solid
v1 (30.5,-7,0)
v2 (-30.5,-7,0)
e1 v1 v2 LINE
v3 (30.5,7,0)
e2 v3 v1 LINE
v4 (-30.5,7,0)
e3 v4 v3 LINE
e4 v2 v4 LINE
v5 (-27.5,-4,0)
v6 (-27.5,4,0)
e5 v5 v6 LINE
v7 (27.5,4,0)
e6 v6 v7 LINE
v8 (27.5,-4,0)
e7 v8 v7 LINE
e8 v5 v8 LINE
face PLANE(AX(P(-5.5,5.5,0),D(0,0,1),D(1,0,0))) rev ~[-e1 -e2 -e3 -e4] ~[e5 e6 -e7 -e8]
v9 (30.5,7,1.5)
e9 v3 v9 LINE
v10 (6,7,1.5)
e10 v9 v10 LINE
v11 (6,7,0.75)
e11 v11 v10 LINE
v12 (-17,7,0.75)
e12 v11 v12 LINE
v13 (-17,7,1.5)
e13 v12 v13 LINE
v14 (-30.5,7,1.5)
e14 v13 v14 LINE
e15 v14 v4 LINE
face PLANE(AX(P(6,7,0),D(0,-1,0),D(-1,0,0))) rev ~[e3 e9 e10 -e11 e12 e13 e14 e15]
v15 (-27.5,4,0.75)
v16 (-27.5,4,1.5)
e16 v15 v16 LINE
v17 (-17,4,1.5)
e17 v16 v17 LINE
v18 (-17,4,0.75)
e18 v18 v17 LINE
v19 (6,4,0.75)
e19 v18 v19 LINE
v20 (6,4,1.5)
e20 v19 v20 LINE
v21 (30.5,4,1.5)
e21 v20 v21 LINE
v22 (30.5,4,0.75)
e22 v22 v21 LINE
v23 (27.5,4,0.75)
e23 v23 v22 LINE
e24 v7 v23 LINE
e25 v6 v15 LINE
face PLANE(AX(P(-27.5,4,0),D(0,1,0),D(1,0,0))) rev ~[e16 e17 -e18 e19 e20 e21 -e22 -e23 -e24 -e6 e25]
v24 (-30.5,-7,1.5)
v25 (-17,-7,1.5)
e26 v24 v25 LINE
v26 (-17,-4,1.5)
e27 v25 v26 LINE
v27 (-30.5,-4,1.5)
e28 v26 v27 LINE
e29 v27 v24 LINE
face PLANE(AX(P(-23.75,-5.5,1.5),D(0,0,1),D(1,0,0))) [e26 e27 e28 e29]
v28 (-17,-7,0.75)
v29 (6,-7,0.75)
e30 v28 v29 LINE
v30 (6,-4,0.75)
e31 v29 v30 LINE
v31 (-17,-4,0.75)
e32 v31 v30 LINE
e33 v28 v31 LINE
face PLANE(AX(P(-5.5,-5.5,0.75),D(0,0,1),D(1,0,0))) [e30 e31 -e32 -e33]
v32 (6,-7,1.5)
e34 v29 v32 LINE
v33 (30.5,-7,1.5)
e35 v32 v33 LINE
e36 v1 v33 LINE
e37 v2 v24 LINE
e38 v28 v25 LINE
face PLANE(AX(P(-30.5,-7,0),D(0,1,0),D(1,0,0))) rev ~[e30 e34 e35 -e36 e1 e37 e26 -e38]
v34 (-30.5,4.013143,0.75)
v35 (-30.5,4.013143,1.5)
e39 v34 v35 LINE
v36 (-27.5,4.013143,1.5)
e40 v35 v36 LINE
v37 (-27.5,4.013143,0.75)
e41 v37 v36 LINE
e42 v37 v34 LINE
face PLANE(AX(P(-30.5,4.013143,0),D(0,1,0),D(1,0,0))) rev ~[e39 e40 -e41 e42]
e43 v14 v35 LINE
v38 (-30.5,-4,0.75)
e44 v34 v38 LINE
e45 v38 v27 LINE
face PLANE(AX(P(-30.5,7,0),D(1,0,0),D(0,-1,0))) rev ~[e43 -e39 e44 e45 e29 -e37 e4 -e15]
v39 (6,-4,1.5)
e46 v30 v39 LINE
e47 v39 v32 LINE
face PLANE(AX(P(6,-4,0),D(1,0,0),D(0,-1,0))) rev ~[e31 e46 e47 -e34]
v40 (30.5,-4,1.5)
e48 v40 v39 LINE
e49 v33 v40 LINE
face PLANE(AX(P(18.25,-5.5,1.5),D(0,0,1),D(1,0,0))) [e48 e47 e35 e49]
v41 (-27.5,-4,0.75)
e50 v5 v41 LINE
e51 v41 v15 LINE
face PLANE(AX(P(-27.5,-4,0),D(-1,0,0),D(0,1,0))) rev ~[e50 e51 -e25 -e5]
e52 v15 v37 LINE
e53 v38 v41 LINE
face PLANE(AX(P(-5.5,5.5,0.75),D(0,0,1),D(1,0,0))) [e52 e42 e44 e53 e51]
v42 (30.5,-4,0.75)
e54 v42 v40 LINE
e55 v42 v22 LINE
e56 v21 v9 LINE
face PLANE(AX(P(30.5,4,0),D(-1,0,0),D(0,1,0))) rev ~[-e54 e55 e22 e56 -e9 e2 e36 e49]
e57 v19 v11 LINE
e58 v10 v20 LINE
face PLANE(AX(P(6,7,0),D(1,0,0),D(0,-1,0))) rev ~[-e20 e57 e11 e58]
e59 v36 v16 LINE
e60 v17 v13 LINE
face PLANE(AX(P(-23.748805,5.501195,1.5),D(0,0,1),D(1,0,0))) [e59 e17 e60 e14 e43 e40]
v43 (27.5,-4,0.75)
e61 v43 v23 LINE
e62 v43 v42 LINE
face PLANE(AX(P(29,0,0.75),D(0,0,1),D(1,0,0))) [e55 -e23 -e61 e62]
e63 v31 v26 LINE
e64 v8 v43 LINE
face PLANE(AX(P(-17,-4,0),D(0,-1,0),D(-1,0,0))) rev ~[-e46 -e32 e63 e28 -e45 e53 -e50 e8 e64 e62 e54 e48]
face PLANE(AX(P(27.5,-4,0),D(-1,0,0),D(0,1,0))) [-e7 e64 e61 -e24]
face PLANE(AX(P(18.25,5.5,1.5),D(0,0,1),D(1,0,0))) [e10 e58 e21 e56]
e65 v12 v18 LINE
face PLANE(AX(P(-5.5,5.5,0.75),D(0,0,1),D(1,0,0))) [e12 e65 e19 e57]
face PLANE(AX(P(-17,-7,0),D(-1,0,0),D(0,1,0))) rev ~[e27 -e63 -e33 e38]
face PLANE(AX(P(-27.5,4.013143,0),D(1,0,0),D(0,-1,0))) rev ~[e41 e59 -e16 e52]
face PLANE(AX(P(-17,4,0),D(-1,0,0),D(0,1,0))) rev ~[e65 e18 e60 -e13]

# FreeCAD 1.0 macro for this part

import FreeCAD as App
import Part
import Sketcher

V = App.Vector
Q = App.Units.Quantity

doc = App.newDocument("Part")
body = doc.addObject("PartDesign::Body", "Body")
body.AllowCompound = True

sketch1 = body.newObject("Sketcher::SketchObject", "Sketch")
sketch1.AttachmentSupport = (doc.getObject("XY_Plane"), [""])
sketch1.MapMode = "FlatFace"
sketch1.addGeometry([
    Part.LineSegment(V(27.5, 4, 0), V(27.5, -4, 0)),
    Part.LineSegment(V(27.5, -4, 0), V(30.5, -4, 0)),
    Part.LineSegment(V(30.5, -4, 0), V(30.5, 4, 0)),
    Part.LineSegment(V(30.5, 4, 0), V(27.5, 4, 0)),
    Part.LineSegment(V(-27.5, 4, 0), V(6, 4, 0)),
    Part.LineSegment(V(6, 4, 0), V(6, 7, 0)),
    Part.LineSegment(V(6, 7, 0), V(-30.5, 7, 0)),
    Part.LineSegment(V(-30.5, 7, 0), V(-30.5, -4, 0)),
    Part.LineSegment(V(-30.5, -4, 0), V(-27.5, -4, 0)),
    Part.LineSegment(V(-27.5, -4, 0), V(-27.5, 4, 0)),
    Part.LineSegment(V(-17, -4, 0), V(-17, -7, 0)),
    Part.LineSegment(V(-17, -7, 0), V(6, -7, 0)),
    Part.LineSegment(V(6, -7, 0), V(6, -4, 0)),
    Part.LineSegment(V(6, -4, 0), V(-17, -4, 0)),
], False)
sketch1.addConstraint([
    Sketcher.Constraint("Coincident", 0, 2, 1, 1),
    Sketcher.Constraint("Coincident", 1, 2, 2, 1),
    Sketcher.Constraint("Coincident", 2, 2, 3, 1),
    Sketcher.Constraint("Coincident", 3, 2, 0, 1),
    Sketcher.Constraint("Coincident", 4, 2, 5, 1),
    Sketcher.Constraint("Coincident", 5, 2, 6, 1),
    Sketcher.Constraint("Coincident", 6, 2, 7, 1),
    Sketcher.Constraint("Coincident", 7, 2, 8, 1),
    Sketcher.Constraint("Coincident", 8, 2, 9, 1),
    Sketcher.Constraint("Coincident", 9, 2, 4, 1),
    Sketcher.Constraint("Coincident", 10, 2, 11, 1),
    Sketcher.Constraint("Coincident", 11, 2, 12, 1),
    Sketcher.Constraint("Coincident", 12, 2, 13, 1),
    Sketcher.Constraint("Coincident", 13, 2, 10, 1),
    Sketcher.Constraint("Vertical", 0),
    Sketcher.Constraint("Horizontal", 1),
    Sketcher.Constraint("Vertical", 2),
    Sketcher.Constraint("Horizontal", 3),
    Sketcher.Constraint("Horizontal", 4),
    Sketcher.Constraint("Vertical", 5),
    Sketcher.Constraint("Horizontal", 6),
    Sketcher.Constraint("Vertical", 7),
    Sketcher.Constraint("Horizontal", 8),
    Sketcher.Constraint("Vertical", 9),
    Sketcher.Constraint("Vertical", 10),
    Sketcher.Constraint("Horizontal", 11),
    Sketcher.Constraint("Vertical", 12),
    Sketcher.Constraint("Horizontal", 13),
    Sketcher.Constraint("Symmetric", 2, 2, 7, 2, -1, 1),
    Sketcher.Constraint("Symmetric", 0, 2, 9, 2, -1, 1),
    Sketcher.Constraint("Symmetric", 5, 2, 11, 2, -1),
    Sketcher.Constraint("Horizontal", 3, 2, 4, 2),
    Sketcher.Constraint("Horizontal", 8, 2, 12, 2),
    Sketcher.Constraint("Equal", 8, 5),
    Sketcher.Constraint("DistanceX", 1, 1, 1, 2, Q("3 mm")),
    Sketcher.Constraint("DistanceX", 11, 1, 11, 2, Q("23 mm")),
    Sketcher.Constraint("DistanceY", 0, 2, 0, 1, Q("8 mm")),
    Sketcher.Constraint("DistanceX", 4, 1, 4, 2, Q("33.5 mm")),
    Sketcher.Constraint("DistanceX", -1, 1, 4, 2, Q("6 mm")),
])
pad1 = body.newObject("PartDesign::Pad", "Pad")
pad1.Profile = sketch1
pad1.Length = 0.75

sketch2 = body.newObject("Sketcher::SketchObject", "Sketch001")
sketch2.AttachmentSupport = (doc.getObject("XY_Plane"), [""])
sketch2.MapMode = "FlatFace"
sketch2.addGeometry([
    Part.LineSegment(V(-30.5, 7, 0), V(-30.5, 4.013, 0)),
    Part.LineSegment(V(-30.5, 4.013, 0), V(-27.5, 4.013, 0)),
    Part.LineSegment(V(-27.5, 4.013, 0), V(-27.5, 4, 0)),
    Part.LineSegment(V(-27.5, 4, 0), V(-17, 4, 0)),
    Part.LineSegment(V(-17, 4, 0), V(-17, 7, 0)),
    Part.LineSegment(V(-17, 7, 0), V(-30.5, 7, 0)),
    Part.LineSegment(V(-30.5, -7, 0), V(-17, -7, 0)),
    Part.LineSegment(V(-17, -7, 0), V(-17, -4, 0)),
    Part.LineSegment(V(-17, -4, 0), V(-30.5, -4, 0)),
    Part.LineSegment(V(-30.5, -4, 0), V(-30.5, -7, 0)),
    Part.LineSegment(V(6, -7, 0), V(30.5, -7, 0)),
    Part.LineSegment(V(30.5, -7, 0), V(30.5, -4, 0)),
    Part.LineSegment(V(30.5, -4, 0), V(6, -4, 0)),
    Part.LineSegment(V(6, -4, 0), V(6, -7, 0)),
    Part.LineSegment(V(30.5, 4, 0), V(30.5, 7, 0)),
    Part.LineSegment(V(30.5, 7, 0), V(6, 7, 0)),
    Part.LineSegment(V(6, 7, 0), V(6, 4, 0)),
    Part.LineSegment(V(6, 4, 0), V(30.5, 4, 0)),
], False)
sketch2.addConstraint([
    Sketcher.Constraint("Coincident", 0, 2, 1, 1),
    Sketcher.Constraint("Coincident", 1, 2, 2, 1),
    Sketcher.Constraint("Coincident", 2, 2, 3, 1),
    Sketcher.Constraint("Coincident", 3, 2, 4, 1),
    Sketcher.Constraint("Coincident", 4, 2, 5, 1),
    Sketcher.Constraint("Coincident", 5, 2, 0, 1),
    Sketcher.Constraint("Coincident", 6, 2, 7, 1),
    Sketcher.Constraint("Coincident", 7, 2, 8, 1),
    Sketcher.Constraint("Coincident", 8, 2, 9, 1),
    Sketcher.Constraint("Coincident", 9, 2, 6, 1),
    Sketcher.Constraint("Coincident", 10, 2, 11, 1),
    Sketcher.Constraint("Coincident", 11, 2, 12, 1),
    Sketcher.Constraint("Coincident", 12, 2, 13, 1),
    Sketcher.Constraint("Coincident", 13, 2, 10, 1),
    Sketcher.Constraint("Coincident", 14, 2, 15, 1),
    Sketcher.Constraint("Coincident", 15, 2, 16, 1),
    Sketcher.Constraint("Coincident", 16, 2, 17, 1),
    Sketcher.Constraint("Coincident", 17, 2, 14, 1),
    Sketcher.Constraint("Vertical", 0),
    Sketcher.Constraint("Horizontal", 1),
    Sketcher.Constraint("Vertical", 2),
    Sketcher.Constraint("Horizontal", 3),
    Sketcher.Constraint("Vertical", 4),
    Sketcher.Constraint("Horizontal", 5),
    Sketcher.Constraint("Horizontal", 6),
    Sketcher.Constraint("Vertical", 7),
    Sketcher.Constraint("Horizontal", 8),
    Sketcher.Constraint("Vertical", 9),
    Sketcher.Constraint("Horizontal", 10),
    Sketcher.Constraint("Vertical", 11),
    Sketcher.Constraint("Horizontal", 12),
    Sketcher.Constraint("Vertical", 13),
    Sketcher.Constraint("Vertical", 14),
    Sketcher.Constraint("Horizontal", 15),
    Sketcher.Constraint("Vertical", 16),
    Sketcher.Constraint("Horizontal", 17),
    Sketcher.Constraint("Symmetric", 5, 2, 10, 2, -1, 1),
    Sketcher.Constraint("Symmetric", 9, 2, 14, 2, -1, 1),
    Sketcher.Constraint("Symmetric", 9, 2, 10, 2, -2),
    Sketcher.Constraint("Symmetric", 3, 2, 7, 2, -1),
    Sketcher.Constraint("Symmetric", 12, 2, 16, 2, -1),
    Sketcher.Constraint("Horizontal", 8, 2, 11, 2),
    Sketcher.Constraint("Equal", 1, 4),
    Sketcher.Constraint("DistanceX", 1, 1, 1, 2, Q("3 mm")),
    Sketcher.Constraint("DistanceX", 3, 1, 3, 2, Q("10.5 mm")),
    Sketcher.Constraint("DistanceX", 10, 1, 10, 2, Q("24.5 mm")),
    Sketcher.Constraint("DistanceY", -1, 1, 2, 2, Q("4 mm")),
    Sketcher.Constraint("DistanceX", 3, 2, -1, 1, Q("17 mm")),
    Sketcher.Constraint("DistanceY", 0, 2, 0, 1, Q("2.986857 mm")),
])
pad2 = body.newObject("PartDesign::Pad", "Pad001")
pad2.Profile = sketch2
pad2.Length = 1.5

doc.recompute()
